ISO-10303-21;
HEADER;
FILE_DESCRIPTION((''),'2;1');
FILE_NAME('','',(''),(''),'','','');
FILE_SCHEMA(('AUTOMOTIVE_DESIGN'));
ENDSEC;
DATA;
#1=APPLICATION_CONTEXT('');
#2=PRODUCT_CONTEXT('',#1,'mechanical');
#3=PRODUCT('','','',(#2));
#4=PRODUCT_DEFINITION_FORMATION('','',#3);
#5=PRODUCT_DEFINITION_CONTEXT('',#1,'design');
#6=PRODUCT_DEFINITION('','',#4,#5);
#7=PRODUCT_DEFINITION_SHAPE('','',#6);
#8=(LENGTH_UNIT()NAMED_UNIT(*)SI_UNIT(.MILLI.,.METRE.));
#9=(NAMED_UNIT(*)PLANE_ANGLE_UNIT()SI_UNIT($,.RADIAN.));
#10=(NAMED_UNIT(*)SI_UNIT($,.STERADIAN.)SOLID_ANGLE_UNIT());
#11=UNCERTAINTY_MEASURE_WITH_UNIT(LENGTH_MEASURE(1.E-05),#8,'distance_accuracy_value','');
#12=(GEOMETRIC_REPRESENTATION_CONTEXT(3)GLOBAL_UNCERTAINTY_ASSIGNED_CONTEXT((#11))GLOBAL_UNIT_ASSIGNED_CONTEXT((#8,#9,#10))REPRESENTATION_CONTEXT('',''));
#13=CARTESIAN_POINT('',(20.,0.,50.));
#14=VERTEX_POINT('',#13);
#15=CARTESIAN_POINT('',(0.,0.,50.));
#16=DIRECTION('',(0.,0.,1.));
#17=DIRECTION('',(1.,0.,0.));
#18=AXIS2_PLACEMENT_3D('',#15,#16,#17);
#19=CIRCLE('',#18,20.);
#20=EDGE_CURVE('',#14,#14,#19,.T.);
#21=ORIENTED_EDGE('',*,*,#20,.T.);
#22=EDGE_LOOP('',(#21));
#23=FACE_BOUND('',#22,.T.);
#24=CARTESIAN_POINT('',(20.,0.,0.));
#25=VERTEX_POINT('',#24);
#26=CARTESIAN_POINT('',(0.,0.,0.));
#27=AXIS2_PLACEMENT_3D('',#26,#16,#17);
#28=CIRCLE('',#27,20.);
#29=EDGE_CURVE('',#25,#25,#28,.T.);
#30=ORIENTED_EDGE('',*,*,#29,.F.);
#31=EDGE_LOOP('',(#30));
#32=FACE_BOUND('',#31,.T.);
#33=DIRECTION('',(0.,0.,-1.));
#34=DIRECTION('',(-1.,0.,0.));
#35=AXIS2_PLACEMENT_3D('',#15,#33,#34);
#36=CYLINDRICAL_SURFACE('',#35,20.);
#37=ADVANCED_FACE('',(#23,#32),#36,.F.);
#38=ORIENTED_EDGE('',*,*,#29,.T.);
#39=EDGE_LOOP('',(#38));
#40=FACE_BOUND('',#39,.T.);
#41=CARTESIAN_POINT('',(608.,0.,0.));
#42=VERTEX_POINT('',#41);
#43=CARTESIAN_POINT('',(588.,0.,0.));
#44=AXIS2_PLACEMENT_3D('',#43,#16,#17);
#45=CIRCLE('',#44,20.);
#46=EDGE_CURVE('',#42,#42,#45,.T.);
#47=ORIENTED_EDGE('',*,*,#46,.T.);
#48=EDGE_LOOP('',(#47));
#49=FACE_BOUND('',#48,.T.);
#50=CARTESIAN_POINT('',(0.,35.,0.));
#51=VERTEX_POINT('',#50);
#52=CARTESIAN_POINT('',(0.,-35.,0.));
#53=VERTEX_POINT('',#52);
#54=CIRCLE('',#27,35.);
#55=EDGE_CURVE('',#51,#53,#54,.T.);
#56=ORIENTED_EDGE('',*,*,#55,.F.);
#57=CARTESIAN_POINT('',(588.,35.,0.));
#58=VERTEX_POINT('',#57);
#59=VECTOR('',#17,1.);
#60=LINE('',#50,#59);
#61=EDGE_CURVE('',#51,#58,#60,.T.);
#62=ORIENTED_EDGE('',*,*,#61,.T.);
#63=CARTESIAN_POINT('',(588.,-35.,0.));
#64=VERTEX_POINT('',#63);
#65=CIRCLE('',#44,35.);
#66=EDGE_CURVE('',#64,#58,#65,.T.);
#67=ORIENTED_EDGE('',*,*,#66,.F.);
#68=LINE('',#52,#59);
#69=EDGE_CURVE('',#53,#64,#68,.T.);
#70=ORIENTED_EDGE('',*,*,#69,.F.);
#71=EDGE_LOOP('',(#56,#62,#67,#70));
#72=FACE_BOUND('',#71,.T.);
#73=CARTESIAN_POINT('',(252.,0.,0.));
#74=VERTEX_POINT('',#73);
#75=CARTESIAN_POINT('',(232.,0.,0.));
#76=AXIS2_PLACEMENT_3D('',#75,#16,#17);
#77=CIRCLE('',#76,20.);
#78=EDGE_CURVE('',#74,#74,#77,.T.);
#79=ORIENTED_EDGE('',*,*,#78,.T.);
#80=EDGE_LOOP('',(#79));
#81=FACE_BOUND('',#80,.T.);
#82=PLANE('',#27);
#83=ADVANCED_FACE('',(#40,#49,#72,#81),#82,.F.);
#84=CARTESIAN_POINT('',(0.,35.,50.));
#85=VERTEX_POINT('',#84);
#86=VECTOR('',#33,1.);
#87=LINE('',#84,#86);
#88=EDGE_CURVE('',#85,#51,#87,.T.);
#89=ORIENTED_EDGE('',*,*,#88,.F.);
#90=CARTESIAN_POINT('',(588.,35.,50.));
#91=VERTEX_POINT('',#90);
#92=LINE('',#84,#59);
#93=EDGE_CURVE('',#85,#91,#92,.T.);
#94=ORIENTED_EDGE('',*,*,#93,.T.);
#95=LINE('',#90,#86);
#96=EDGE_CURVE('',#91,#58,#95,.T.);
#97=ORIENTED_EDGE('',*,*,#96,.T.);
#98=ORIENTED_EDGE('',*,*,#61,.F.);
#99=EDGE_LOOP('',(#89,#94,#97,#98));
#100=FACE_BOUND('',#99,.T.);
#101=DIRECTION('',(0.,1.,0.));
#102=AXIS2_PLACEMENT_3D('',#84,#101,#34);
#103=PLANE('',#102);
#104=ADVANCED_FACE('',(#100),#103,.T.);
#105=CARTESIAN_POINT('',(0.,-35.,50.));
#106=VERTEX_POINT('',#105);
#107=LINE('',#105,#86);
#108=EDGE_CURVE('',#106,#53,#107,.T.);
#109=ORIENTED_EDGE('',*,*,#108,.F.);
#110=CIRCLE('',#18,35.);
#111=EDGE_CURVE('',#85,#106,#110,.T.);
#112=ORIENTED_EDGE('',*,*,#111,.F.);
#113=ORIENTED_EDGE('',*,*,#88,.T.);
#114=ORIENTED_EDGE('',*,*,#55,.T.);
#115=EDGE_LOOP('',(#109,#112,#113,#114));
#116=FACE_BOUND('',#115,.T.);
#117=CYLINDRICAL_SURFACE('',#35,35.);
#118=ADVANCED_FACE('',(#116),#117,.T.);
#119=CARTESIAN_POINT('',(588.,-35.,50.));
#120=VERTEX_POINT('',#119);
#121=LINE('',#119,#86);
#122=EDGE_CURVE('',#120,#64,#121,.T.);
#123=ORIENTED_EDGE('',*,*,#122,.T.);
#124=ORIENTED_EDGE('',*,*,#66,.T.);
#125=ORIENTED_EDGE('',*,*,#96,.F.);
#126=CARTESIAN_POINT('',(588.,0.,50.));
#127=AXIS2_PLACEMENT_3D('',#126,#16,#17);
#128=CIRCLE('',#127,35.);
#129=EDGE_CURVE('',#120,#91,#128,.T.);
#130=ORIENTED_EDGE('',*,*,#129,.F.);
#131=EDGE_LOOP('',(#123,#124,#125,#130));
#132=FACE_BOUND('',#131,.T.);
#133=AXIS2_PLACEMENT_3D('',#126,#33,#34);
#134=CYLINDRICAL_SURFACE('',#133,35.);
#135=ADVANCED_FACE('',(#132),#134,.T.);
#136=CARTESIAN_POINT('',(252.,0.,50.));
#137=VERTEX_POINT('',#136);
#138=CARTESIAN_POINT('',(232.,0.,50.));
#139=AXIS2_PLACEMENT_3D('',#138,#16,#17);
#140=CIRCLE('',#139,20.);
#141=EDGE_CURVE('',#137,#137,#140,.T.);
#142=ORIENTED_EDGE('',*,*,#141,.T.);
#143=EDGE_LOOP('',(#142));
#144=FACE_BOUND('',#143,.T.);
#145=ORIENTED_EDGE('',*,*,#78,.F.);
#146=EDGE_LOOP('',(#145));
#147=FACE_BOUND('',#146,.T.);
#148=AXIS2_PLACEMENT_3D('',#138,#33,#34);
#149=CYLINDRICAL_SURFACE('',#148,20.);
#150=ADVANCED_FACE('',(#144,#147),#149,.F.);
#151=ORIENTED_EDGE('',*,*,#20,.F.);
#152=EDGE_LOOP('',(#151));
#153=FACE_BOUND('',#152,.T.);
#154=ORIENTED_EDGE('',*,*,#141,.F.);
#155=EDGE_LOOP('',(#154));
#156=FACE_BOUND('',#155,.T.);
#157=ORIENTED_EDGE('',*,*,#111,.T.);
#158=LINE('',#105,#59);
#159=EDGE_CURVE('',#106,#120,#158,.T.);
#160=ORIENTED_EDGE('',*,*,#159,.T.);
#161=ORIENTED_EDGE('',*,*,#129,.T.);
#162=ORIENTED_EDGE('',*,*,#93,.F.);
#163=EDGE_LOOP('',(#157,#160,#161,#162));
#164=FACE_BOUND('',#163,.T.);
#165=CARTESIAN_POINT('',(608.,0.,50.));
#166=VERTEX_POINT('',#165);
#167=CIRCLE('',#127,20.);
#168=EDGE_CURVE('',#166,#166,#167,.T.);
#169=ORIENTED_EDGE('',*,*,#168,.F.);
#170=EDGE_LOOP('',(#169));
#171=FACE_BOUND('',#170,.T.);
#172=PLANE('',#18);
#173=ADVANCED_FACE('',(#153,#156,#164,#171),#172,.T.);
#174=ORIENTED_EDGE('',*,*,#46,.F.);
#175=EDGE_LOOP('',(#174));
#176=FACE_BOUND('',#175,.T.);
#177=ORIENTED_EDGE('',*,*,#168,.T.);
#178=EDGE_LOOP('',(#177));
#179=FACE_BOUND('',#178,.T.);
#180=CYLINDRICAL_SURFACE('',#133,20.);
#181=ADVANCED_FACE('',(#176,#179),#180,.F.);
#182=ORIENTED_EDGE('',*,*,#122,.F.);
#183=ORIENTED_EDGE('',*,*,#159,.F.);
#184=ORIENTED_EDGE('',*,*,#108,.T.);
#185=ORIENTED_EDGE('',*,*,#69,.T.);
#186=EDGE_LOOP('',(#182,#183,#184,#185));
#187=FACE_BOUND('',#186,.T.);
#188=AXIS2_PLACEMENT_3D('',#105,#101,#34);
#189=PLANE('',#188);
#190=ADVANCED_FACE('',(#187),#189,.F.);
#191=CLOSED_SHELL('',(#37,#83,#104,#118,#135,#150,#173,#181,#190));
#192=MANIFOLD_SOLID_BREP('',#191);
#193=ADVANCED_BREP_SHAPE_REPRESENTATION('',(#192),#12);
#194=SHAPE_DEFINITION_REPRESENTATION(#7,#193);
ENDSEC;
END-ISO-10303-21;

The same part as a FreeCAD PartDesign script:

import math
import FreeCAD as App
import Part
import Sketcher

V = App.Vector
Q = App.Units.Quantity

doc = App.newDocument("Part")
params = doc.addObject("Spreadsheet::Sheet", "Params")
for row, (alias, value) in enumerate([
    ("sketch1_diameter", "40 mm"),
    ("sketch1_radius", "35 mm"),
    ("sketch1_width", "588 mm"),
    ("pad1_length", "50 mm"),
], start=1):
    params.set(f"A{row}", alias)
    params.set(f"B{row}", "=" + value)
    params.setAlias(f"B{row}", alias)

body = doc.addObject("PartDesign::Body", "Body")

# Sketch on XY plane
sketch1 = body.newObject("Sketcher::SketchObject", "Sketch")
sketch1.AttachmentSupport = (doc.getObject("XY_Plane"), [""])
sketch1.MapMode = "FlatFace"
sketch1.addGeometry([
    Part.LineSegment(V(588, 35, 0), V(0, 35, 0)),  # 0
    Part.ArcOfCircle(Part.Circle(V(0, 0, 0), V(0, 0, 1), 35), math.radians(90), math.radians(270)),  # 1
    Part.LineSegment(V(0, -35, 0), V(588, -35, 0)),  # 2
    Part.ArcOfCircle(Part.Circle(V(588, 0, 0), V(0, 0, 1), 35), math.radians(-90), math.radians(90)),  # 3
    Part.Circle(V(588, 0, 0), V(0, 0, 1), 20),  # 4
    Part.Circle(V(232, 0, 0), V(0, 0, 1), 20),  # 5
    Part.Circle(V(0, 0, 0), V(0, 0, 1), 20),  # 6
], False)
sketch1.addConstraint([
    Sketcher.Constraint("Tangent", 0, 2, 1, 1),
    Sketcher.Constraint("Tangent", 1, 2, 2, 1),
    Sketcher.Constraint("Tangent", 2, 2, 3, 1),
    Sketcher.Constraint("Tangent", 3, 2, 0, 1),
    Sketcher.Constraint("Horizontal", 0),
    Sketcher.Constraint("Horizontal", 2),
    Sketcher.Constraint("Coincident", 1, 3, -1, 1),
    Sketcher.Constraint("Coincident", 6, 3, -1, 1),
    Sketcher.Constraint("Coincident", 4, 3, 3, 3),
    Sketcher.Constraint("Equal", 4, 5),
    Sketcher.Constraint("Equal", 5, 6),
    Sketcher.Constraint("PointOnObject", 5, 3, -1),
    Sketcher.Constraint("Diameter", 4, Q("40 mm")),
    Sketcher.Constraint("Radius", 1, Q("35 mm")),
    Sketcher.Constraint("DistanceX", 0, 2, 0, 1, Q("588 mm")),
    Sketcher.Constraint("DistanceX", -1, 1, 5, 3, Q("232 mm")),
])
sketch1.setExpression("Constraints[12]", "Params.sketch1_diameter")
sketch1.setExpression("Constraints[13]", "Params.sketch1_radius")
sketch1.setExpression("Constraints[14]", "Params.sketch1_width")
pad1 = body.newObject("PartDesign::Pad", "Pad")
pad1.Profile = sketch1
pad1.setExpression("Length", "Params.pad1_length")

doc.recompute()
